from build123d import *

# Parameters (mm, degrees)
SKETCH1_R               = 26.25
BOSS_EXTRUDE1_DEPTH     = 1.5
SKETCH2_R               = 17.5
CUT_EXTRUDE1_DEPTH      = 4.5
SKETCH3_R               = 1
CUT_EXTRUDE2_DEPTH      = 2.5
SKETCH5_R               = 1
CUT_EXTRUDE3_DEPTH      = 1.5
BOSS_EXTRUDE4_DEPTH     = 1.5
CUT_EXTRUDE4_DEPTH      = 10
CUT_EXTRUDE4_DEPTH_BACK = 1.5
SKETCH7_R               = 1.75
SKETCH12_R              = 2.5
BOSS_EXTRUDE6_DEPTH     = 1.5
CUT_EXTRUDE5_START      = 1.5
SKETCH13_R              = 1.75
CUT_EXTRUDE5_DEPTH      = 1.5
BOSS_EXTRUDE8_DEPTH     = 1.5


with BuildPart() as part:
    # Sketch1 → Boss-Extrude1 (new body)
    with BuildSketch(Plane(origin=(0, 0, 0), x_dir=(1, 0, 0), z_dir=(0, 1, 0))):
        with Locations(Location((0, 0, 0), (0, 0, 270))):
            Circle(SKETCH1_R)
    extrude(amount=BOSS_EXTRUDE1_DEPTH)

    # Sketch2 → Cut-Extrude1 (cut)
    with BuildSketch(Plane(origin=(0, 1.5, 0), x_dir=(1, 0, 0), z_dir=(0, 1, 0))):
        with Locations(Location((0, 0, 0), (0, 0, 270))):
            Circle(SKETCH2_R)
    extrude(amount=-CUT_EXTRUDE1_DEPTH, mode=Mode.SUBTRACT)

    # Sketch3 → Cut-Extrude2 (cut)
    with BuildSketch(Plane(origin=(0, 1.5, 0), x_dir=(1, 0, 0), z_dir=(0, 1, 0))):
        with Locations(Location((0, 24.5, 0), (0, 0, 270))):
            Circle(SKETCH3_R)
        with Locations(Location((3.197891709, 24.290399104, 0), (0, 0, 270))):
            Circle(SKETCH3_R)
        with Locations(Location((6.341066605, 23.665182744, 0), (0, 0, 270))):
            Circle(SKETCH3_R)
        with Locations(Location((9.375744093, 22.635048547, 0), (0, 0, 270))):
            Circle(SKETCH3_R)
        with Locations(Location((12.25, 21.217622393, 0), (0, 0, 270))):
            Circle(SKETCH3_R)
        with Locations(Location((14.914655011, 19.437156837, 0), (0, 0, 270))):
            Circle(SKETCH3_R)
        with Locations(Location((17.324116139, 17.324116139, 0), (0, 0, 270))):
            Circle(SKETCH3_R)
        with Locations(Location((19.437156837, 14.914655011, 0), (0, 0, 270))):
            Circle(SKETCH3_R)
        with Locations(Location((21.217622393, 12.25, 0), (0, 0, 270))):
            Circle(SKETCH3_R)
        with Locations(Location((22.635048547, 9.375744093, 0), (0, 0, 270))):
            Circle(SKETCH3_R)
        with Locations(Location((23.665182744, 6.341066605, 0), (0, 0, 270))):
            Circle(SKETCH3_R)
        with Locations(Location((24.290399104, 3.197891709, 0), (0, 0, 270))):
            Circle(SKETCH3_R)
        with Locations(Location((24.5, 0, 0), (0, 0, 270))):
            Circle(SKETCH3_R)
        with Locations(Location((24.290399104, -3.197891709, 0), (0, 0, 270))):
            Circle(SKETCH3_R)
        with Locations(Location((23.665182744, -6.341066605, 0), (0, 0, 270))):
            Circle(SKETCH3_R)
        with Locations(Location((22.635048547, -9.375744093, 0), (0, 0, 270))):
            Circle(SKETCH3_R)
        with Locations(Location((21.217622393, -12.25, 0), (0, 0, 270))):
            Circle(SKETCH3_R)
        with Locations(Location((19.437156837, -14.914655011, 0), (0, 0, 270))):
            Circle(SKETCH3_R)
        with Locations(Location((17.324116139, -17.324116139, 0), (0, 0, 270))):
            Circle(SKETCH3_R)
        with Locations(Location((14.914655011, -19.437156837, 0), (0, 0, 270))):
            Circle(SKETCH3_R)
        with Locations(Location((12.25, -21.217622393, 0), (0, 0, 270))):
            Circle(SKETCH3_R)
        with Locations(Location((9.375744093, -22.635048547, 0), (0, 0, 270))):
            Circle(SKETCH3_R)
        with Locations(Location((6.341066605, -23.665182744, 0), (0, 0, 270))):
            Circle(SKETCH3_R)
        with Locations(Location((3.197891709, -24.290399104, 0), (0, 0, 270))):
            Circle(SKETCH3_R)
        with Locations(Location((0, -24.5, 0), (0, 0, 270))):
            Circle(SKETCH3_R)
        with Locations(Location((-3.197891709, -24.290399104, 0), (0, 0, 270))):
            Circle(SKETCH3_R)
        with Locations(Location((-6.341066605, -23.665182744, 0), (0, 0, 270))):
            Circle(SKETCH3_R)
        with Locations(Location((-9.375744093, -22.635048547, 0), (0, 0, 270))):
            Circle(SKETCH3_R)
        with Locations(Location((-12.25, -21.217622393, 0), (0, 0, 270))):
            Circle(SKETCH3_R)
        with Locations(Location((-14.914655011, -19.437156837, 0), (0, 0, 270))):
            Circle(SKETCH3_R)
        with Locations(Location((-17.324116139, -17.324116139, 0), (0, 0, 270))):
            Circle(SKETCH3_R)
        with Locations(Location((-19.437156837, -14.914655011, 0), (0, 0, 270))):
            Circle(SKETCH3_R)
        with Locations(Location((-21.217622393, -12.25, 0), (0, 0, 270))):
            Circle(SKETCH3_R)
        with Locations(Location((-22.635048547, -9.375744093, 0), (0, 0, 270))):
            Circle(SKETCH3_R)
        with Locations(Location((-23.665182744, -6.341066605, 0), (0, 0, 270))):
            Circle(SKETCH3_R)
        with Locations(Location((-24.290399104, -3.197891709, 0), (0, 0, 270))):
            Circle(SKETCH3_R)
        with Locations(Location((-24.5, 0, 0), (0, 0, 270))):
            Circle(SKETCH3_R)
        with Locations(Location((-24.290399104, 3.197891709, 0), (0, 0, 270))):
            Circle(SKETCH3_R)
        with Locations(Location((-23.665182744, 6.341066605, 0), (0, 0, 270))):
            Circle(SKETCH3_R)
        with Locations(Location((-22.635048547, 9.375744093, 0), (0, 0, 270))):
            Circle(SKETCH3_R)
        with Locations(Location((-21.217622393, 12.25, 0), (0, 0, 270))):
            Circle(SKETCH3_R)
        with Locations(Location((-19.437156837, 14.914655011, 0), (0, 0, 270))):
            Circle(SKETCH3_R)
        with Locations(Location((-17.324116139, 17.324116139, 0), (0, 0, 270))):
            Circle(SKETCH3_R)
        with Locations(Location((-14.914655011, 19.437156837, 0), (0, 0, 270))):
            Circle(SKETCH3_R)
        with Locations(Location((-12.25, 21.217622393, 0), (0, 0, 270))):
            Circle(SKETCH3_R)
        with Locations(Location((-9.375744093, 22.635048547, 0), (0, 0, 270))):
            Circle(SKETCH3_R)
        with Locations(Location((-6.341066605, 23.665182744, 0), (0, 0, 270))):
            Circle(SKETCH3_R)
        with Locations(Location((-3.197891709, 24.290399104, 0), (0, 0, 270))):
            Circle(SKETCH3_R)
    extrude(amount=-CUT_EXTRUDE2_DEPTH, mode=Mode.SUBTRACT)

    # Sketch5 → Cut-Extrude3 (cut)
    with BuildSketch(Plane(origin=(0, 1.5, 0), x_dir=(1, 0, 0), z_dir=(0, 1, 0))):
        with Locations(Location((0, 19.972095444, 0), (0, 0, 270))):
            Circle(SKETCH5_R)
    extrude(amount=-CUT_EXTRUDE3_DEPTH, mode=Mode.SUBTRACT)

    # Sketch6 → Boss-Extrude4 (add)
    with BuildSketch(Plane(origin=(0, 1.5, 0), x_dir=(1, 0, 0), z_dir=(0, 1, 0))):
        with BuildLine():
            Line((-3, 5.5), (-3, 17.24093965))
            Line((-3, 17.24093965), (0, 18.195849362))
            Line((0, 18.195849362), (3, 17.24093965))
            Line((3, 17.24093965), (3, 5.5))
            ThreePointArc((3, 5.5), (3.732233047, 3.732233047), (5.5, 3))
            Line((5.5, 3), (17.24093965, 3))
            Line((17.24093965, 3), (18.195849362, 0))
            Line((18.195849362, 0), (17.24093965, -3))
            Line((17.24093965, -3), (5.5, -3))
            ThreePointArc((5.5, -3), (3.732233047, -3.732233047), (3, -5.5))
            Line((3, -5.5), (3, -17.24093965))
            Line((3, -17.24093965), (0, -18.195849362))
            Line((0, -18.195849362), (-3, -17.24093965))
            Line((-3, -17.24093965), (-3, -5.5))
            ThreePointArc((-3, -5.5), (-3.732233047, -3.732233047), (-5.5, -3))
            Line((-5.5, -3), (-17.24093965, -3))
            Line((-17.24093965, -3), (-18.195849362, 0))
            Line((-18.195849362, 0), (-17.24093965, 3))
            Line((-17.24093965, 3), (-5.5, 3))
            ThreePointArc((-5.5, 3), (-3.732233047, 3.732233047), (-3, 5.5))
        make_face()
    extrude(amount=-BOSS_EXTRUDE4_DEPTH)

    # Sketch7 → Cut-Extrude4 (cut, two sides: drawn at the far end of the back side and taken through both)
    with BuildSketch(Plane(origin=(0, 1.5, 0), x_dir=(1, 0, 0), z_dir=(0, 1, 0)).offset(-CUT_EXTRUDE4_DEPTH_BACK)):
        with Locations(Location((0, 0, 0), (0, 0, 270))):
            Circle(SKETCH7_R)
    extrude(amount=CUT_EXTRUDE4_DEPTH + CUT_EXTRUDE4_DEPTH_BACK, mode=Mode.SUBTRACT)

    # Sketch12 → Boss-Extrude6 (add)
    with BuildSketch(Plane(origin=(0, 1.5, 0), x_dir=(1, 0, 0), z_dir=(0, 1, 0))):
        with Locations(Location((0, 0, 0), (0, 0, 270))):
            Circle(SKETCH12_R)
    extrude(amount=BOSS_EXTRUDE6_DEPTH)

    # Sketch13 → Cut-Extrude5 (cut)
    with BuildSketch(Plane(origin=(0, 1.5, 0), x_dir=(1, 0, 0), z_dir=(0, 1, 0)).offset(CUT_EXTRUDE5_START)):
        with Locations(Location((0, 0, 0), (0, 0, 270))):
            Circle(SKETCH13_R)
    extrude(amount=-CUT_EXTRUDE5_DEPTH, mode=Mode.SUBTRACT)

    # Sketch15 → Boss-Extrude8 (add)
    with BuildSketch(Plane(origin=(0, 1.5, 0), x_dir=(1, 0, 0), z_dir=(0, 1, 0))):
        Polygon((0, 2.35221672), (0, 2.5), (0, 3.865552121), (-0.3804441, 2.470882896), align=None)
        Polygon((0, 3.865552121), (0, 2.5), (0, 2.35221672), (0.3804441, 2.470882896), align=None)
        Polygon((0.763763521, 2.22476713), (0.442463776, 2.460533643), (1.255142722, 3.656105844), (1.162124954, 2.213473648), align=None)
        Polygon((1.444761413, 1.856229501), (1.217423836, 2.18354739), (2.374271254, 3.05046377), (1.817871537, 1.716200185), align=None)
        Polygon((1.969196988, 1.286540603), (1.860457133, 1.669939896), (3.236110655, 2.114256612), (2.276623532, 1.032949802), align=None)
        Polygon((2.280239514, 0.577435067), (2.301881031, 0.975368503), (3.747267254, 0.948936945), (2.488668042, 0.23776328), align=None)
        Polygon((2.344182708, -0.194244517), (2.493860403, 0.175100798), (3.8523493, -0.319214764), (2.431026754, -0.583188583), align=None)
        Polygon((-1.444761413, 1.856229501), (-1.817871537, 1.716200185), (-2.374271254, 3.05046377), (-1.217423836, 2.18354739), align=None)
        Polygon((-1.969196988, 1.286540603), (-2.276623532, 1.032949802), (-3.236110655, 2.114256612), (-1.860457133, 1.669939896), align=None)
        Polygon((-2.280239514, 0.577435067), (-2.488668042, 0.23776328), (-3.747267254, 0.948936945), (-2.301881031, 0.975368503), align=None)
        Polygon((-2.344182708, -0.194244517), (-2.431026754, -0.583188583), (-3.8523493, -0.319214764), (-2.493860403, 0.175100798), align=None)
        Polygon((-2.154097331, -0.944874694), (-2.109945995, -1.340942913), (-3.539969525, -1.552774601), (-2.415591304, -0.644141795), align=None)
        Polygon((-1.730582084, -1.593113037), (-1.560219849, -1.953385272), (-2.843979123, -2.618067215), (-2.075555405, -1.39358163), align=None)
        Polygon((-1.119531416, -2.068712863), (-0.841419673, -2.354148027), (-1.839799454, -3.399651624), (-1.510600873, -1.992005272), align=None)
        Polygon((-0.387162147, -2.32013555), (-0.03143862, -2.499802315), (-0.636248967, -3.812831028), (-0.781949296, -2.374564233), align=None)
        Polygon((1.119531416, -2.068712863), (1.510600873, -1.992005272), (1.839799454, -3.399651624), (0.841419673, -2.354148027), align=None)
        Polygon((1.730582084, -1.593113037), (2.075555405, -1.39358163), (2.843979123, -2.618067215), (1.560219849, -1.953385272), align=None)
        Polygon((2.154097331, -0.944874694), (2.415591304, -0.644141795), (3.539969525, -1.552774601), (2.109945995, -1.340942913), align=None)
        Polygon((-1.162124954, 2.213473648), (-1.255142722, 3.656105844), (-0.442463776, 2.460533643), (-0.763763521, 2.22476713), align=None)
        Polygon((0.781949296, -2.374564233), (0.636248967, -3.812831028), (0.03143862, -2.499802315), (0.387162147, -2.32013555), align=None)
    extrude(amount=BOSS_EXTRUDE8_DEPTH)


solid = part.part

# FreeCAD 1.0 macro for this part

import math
import FreeCAD as App
import Part
import Sketcher
from FreeCAD import Vector

doc = App.newDocument("Part")
body = doc.addObject("PartDesign::Body", "Body")

# Sketch on XZ plane
sketch1 = body.newObject("Sketcher::SketchObject", "Sketch")
sketch1.AttachmentSupport = (doc.getObject("XZ_Plane"), [""])
sketch1.MapMode = "FlatFace"
sketch1.addGeometry(Part.Circle(Vector(0, 0, 0), Vector(0, 0, 1), 26), False)
sketch1.addConstraint([
    Sketcher.Constraint("Coincident", 0, 3, -1, 1),
    Sketcher.Constraint("Diameter", 0, 52.5),
])
pad1 = body.newObject("PartDesign::Pad", "Pad")
pad1.Profile = sketch1
pad1.Length = 1.5
pad1.Reversed = True

# Sketch on XZ plane
sketch2 = body.newObject("Sketcher::SketchObject", "Sketch001")
sketch2.AttachmentSupport = (doc.getObject("XZ_Plane"), [""])
sketch2.MapMode = "FlatFace"
sketch2.AttachmentOffset = App.Placement(Vector(0, 0, -1.5), App.Rotation())
sketch2.addGeometry(Part.Circle(Vector(0, 0, 0), Vector(0, 0, 1), 18), False)
sketch2.addConstraint([
    Sketcher.Constraint("Coincident", 0, 3, -1, 1),
    Sketcher.Constraint("Diameter", 0, 35.0),
])
pocket1 = body.newObject("PartDesign::Pocket", "Pocket")
pocket1.Profile = sketch2
pocket1.Length = 4.5
pocket1.Reversed = True

# Sketch on XZ plane
sketch3 = body.newObject("Sketcher::SketchObject", "Sketch002")
sketch3.AttachmentSupport = (doc.getObject("XZ_Plane"), [""])
sketch3.MapMode = "FlatFace"
sketch3.AttachmentOffset = App.Placement(Vector(0, 0, -1.5), App.Rotation())
sketch3.addGeometry([
    Part.Circle(Vector(0, -24.5, 0), Vector(0, 0, 1), 1),  # 0
    Part.Circle(Vector(3.2, -24.3, 0), Vector(0, 0, 1), 1),  # 1
    Part.Circle(Vector(6.3, -23.7, 0), Vector(0, 0, 1), 1),  # 2
    Part.Circle(Vector(9.4, -22.6, 0), Vector(0, 0, 1), 1),  # 3
    Part.Circle(Vector(12.2, -21.2, 0), Vector(0, 0, 1), 1),  # 4
    Part.Circle(Vector(14.9, -19.4, 0), Vector(0, 0, 1), 1),  # 5
    Part.Circle(Vector(17.3, -17.3, 0), Vector(0, 0, 1), 1),  # 6
    Part.Circle(Vector(19.4, -14.9, 0), Vector(0, 0, 1), 1),  # 7
    Part.Circle(Vector(21.2, -12.2, 0), Vector(0, 0, 1), 1),  # 8
    Part.Circle(Vector(22.6, -9.4, 0), Vector(0, 0, 1), 1),  # 9
    Part.Circle(Vector(23.7, -6.3, 0), Vector(0, 0, 1), 1),  # 10
    Part.Circle(Vector(24.3, -3.2, 0), Vector(0, 0, 1), 1),  # 11
    Part.Circle(Vector(24.5, 0, 0), Vector(0, 0, 1), 1),  # 12
    Part.Circle(Vector(24.3, 3.2, 0), Vector(0, 0, 1), 1),  # 13
    Part.Circle(Vector(23.7, 6.3, 0), Vector(0, 0, 1), 1),  # 14
    Part.Circle(Vector(22.6, 9.4, 0), Vector(0, 0, 1), 1),  # 15
    Part.Circle(Vector(21.2, 12.2, 0), Vector(0, 0, 1), 1),  # 16
    Part.Circle(Vector(19.4, 14.9, 0), Vector(0, 0, 1), 1),  # 17
    Part.Circle(Vector(17.3, 17.3, 0), Vector(0, 0, 1), 1),  # 18
    Part.Circle(Vector(14.9, 19.4, 0), Vector(0, 0, 1), 1),  # 19
    Part.Circle(Vector(12.2, 21.2, 0), Vector(0, 0, 1), 1),  # 20
    Part.Circle(Vector(9.4, 22.6, 0), Vector(0, 0, 1), 1),  # 21
    Part.Circle(Vector(6.3, 23.7, 0), Vector(0, 0, 1), 1),  # 22
    Part.Circle(Vector(3.2, 24.3, 0), Vector(0, 0, 1), 1),  # 23
    Part.Circle(Vector(0, 24.5, 0), Vector(0, 0, 1), 1),  # 24
    Part.Circle(Vector(-3.2, 24.3, 0), Vector(0, 0, 1), 1),  # 25
    Part.Circle(Vector(-6.3, 23.7, 0), Vector(0, 0, 1), 1),  # 26
    Part.Circle(Vector(-9.4, 22.6, 0), Vector(0, 0, 1), 1),  # 27
    Part.Circle(Vector(-12.2, 21.2, 0), Vector(0, 0, 1), 1),  # 28
    Part.Circle(Vector(-14.9, 19.4, 0), Vector(0, 0, 1), 1),  # 29
    Part.Circle(Vector(-17.3, 17.3, 0), Vector(0, 0, 1), 1),  # 30
    Part.Circle(Vector(-19.4, 14.9, 0), Vector(0, 0, 1), 1),  # 31
    Part.Circle(Vector(-21.2, 12.2, 0), Vector(0, 0, 1), 1),  # 32
    Part.Circle(Vector(-22.6, 9.4, 0), Vector(0, 0, 1), 1),  # 33
    Part.Circle(Vector(-23.7, 6.3, 0), Vector(0, 0, 1), 1),  # 34
    Part.Circle(Vector(-24.3, 3.2, 0), Vector(0, 0, 1), 1),  # 35
    Part.Circle(Vector(-24.5, 0, 0), Vector(0, 0, 1), 1),  # 36
    Part.Circle(Vector(-24.3, -3.2, 0), Vector(0, 0, 1), 1),  # 37
    Part.Circle(Vector(-23.7, -6.3, 0), Vector(0, 0, 1), 1),  # 38
    Part.Circle(Vector(-22.6, -9.4, 0), Vector(0, 0, 1), 1),  # 39
    Part.Circle(Vector(-21.2, -12.2, 0), Vector(0, 0, 1), 1),  # 40
    Part.Circle(Vector(-19.4, -14.9, 0), Vector(0, 0, 1), 1),  # 41
    Part.Circle(Vector(-17.3, -17.3, 0), Vector(0, 0, 1), 1),  # 42
    Part.Circle(Vector(-14.9, -19.4, 0), Vector(0, 0, 1), 1),  # 43
    Part.Circle(Vector(-12.2, -21.2, 0), Vector(0, 0, 1), 1),  # 44
    Part.Circle(Vector(-9.4, -22.6, 0), Vector(0, 0, 1), 1),  # 45
    Part.Circle(Vector(-6.3, -23.7, 0), Vector(0, 0, 1), 1),  # 46
    Part.Circle(Vector(-3.2, -24.3, 0), Vector(0, 0, 1), 1),  # 47
], False)
sketch3.addConstraint([
    Sketcher.Constraint("Equal", 0, 1),
    Sketcher.Constraint("Equal", 1, 2),
    Sketcher.Constraint("Equal", 2, 3),
    Sketcher.Constraint("Equal", 3, 4),
    Sketcher.Constraint("Equal", 4, 5),
    Sketcher.Constraint("Equal", 5, 6),
    Sketcher.Constraint("Equal", 6, 7),
    Sketcher.Constraint("Equal", 7, 8),
    Sketcher.Constraint("Equal", 8, 9),
    Sketcher.Constraint("Equal", 9, 10),
    Sketcher.Constraint("Equal", 10, 11),
    Sketcher.Constraint("Equal", 11, 12),
    Sketcher.Constraint("Equal", 12, 13),
    Sketcher.Constraint("Equal", 13, 14),
    Sketcher.Constraint("Equal", 14, 15),
    Sketcher.Constraint("Equal", 15, 16),
    Sketcher.Constraint("Equal", 16, 17),
    Sketcher.Constraint("Equal", 17, 18),
    Sketcher.Constraint("Equal", 18, 19),
    Sketcher.Constraint("Equal", 19, 20),
    Sketcher.Constraint("Equal", 20, 21),
    Sketcher.Constraint("Equal", 21, 22),
    Sketcher.Constraint("Equal", 22, 23),
    Sketcher.Constraint("Equal", 23, 24),
    Sketcher.Constraint("Equal", 24, 25),
    Sketcher.Constraint("Equal", 25, 26),
    Sketcher.Constraint("Equal", 26, 27),
    Sketcher.Constraint("Equal", 27, 28),
    Sketcher.Constraint("Equal", 28, 29),
    Sketcher.Constraint("Equal", 29, 30),
    Sketcher.Constraint("Equal", 30, 31),
    Sketcher.Constraint("Equal", 31, 32),
    Sketcher.Constraint("Equal", 32, 33),
    Sketcher.Constraint("Equal", 33, 34),
    Sketcher.Constraint("Equal", 34, 35),
    Sketcher.Constraint("Equal", 35, 36),
    Sketcher.Constraint("Equal", 36, 37),
    Sketcher.Constraint("Equal", 37, 38),
    Sketcher.Constraint("Equal", 38, 39),
    Sketcher.Constraint("Equal", 39, 40),
    Sketcher.Constraint("Equal", 40, 41),
    Sketcher.Constraint("Equal", 41, 42),
    Sketcher.Constraint("Equal", 42, 43),
    Sketcher.Constraint("Equal", 43, 44),
    Sketcher.Constraint("Equal", 44, 45),
    Sketcher.Constraint("Equal", 45, 46),
    Sketcher.Constraint("Equal", 46, 47),
    Sketcher.Constraint("Symmetric", 0, 3, 24, 3, -1, 1),
    Sketcher.Constraint("Symmetric", 1, 3, 25, 3, -1, 1),
    Sketcher.Constraint("Symmetric", 2, 3, 26, 3, -1, 1),
    Sketcher.Constraint("Symmetric", 3, 3, 27, 3, -1, 1),
    Sketcher.Constraint("Symmetric", 4, 3, 28, 3, -1, 1),
    Sketcher.Constraint("Symmetric", 5, 3, 29, 3, -1, 1),
    Sketcher.Constraint("Symmetric", 6, 3, 30, 3, -1, 1),
    Sketcher.Constraint("Symmetric", 7, 3, 31, 3, -1, 1),
    Sketcher.Constraint("Symmetric", 8, 3, 32, 3, -1, 1),
    Sketcher.Constraint("Symmetric", 9, 3, 33, 3, -1, 1),
    Sketcher.Constraint("Symmetric", 10, 3, 34, 3, -1, 1),
    Sketcher.Constraint("Symmetric", 11, 3, 35, 3, -1, 1),
    Sketcher.Constraint("Symmetric", 12, 3, 36, 3, -1, 1),
    Sketcher.Constraint("Symmetric", 13, 3, 37, 3, -1, 1),
    Sketcher.Constraint("Symmetric", 14, 3, 38, 3, -1, 1),
    Sketcher.Constraint("Symmetric", 15, 3, 39, 3, -1, 1),
    Sketcher.Constraint("Symmetric", 16, 3, 40, 3, -1, 1),
    Sketcher.Constraint("Symmetric", 17, 3, 41, 3, -1, 1),
    Sketcher.Constraint("Symmetric", 18, 3, 42, 3, -1, 1),
    Sketcher.Constraint("Symmetric", 19, 3, 43, 3, -1, 1),
    Sketcher.Constraint("Symmetric", 20, 3, 44, 3, -1, 1),
    Sketcher.Constraint("Symmetric", 21, 3, 45, 3, -1, 1),
    Sketcher.Constraint("Symmetric", 22, 3, 46, 3, -1, 1),
    Sketcher.Constraint("Symmetric", 23, 3, 47, 3, -1, 1),
    Sketcher.Constraint("Symmetric", 23, 3, 25, 3, -2),
    Sketcher.Constraint("Symmetric", 22, 3, 26, 3, -2),
    Sketcher.Constraint("Symmetric", 21, 3, 27, 3, -2),
    Sketcher.Constraint("Symmetric", 20, 3, 28, 3, -2),
    Sketcher.Constraint("Symmetric", 19, 3, 29, 3, -2),
    Sketcher.Constraint("Symmetric", 18, 3, 30, 3, -2),
    Sketcher.Constraint("Symmetric", 17, 3, 31, 3, -2),
    Sketcher.Constraint("Symmetric", 16, 3, 32, 3, -2),
    Sketcher.Constraint("Symmetric", 15, 3, 33, 3, -2),
    Sketcher.Constraint("Symmetric", 14, 3, 34, 3, -2),
    Sketcher.Constraint("Symmetric", 13, 3, 35, 3, -2),
    Sketcher.Constraint("PointOnObject", 0, 3, -2),
    Sketcher.Constraint("PointOnObject", 12, 3, -1),
    Sketcher.Constraint("Diameter", 0, 2.0),
    Sketcher.Constraint("DistanceY", 0, 3, -1, 1, 24.5),
    Sketcher.Constraint("DistanceX", -1, 1, 12, 3, 24.5),
    Sketcher.Constraint("DistanceX", -1, 1, 4, 3, 12.25),
    Sketcher.Constraint("DistanceY", 8, 3, -1, 1, 12.25),
    Sketcher.Constraint("DistanceY", 1, 3, -1, 1, 24.290399),
    Sketcher.Constraint("DistanceX", -1, 1, 11, 3, 24.290399),
    Sketcher.Constraint("DistanceX", 5, 3, 7, 3, 4.522502),
    Sketcher.Constraint("DistanceY", 5, 3, 7, 3, 4.522502),
    Sketcher.Constraint("DistanceX", -1, 1, 1, 3, 3.197892),
    Sketcher.Constraint("DistanceY", 3, 3, -1, 1, 22.635049),
    Sketcher.Constraint("DistanceX", -1, 1, 9, 3, 22.635049),
    Sketcher.Constraint("DistanceY", 11, 3, -1, 1, 3.197892),
    Sketcher.Constraint("DistanceY", 2, 3, 4, 3, 2.44756),
    Sketcher.Constraint("DistanceX", 3, 3, 5, 3, 5.538911),
    Sketcher.Constraint("DistanceY", 3, 3, 5, 3, 3.197892),
    Sketcher.Constraint("DistanceX", 2, 3, 5, 3, 8.573588),
    Sketcher.Constraint("DistanceX", 5, 3, 6, 3, 2.409461),
    Sketcher.Constraint("DistanceY", 5, 3, 6, 3, 2.113041),
    Sketcher.Constraint("DistanceX", 3, 3, 8, 3, 11.841878),
    Sketcher.Constraint("DistanceX", 7, 3, 9, 3, 3.197892),
    Sketcher.Constraint("DistanceY", 7, 3, 9, 3, 5.538911),
    Sketcher.Constraint("DistanceY", 4, 3, 9, 3, 11.841878),
    Sketcher.Constraint("DistanceX", 8, 3, 10, 3, 2.44756),
    Sketcher.Constraint("DistanceY", 7, 3, 10, 3, 8.573588),
])
pocket2 = body.newObject("PartDesign::Pocket", "Pocket001")
pocket2.Profile = sketch3
pocket2.Length = 2.5
pocket2.Reversed = True

# Sketch on XZ plane
sketch4 = body.newObject("Sketcher::SketchObject", "Sketch003")
sketch4.AttachmentSupport = (doc.getObject("XZ_Plane"), [""])
sketch4.MapMode = "FlatFace"
sketch4.AttachmentOffset = App.Placement(Vector(0, 0, -1.5), App.Rotation())
sketch4.addGeometry(Part.Circle(Vector(0, -20, 0), Vector(0, 0, 1), 1), False)
sketch4.addConstraint([
    Sketcher.Constraint("PointOnObject", 0, 3, -2),
    Sketcher.Constraint("Diameter", 0, 2.0),
    Sketcher.Constraint("DistanceY", 0, 3, -1, 1, 19.972095),
])
pocket3 = body.newObject("PartDesign::Pocket", "Pocket002")
pocket3.Profile = sketch4
pocket3.Length = 1.5
pocket3.Reversed = True

# Sketch on XZ plane
sketch5 = body.newObject("Sketcher::SketchObject", "Sketch004")
sketch5.AttachmentSupport = (doc.getObject("XZ_Plane"), [""])
sketch5.MapMode = "FlatFace"
sketch5.AttachmentOffset = App.Placement(Vector(0, 0, -1.5), App.Rotation())
sketch5.addGeometry([
    Part.LineSegment(Vector(-3, -17.2, 0), Vector(-3, -5.5, 0)),  # 0
    Part.ArcOfCircle(Part.Circle(Vector(-5.5, -5.5, 0), Vector(0, 0, 1), 2.5), math.radians(0), math.radians(90)),  # 1
    Part.LineSegment(Vector(-5.5, -3, 0), Vector(-17.2, -3, 0)),  # 2
    Part.LineSegment(Vector(-17.2, -3, 0), Vector(-18.2, 0, 0)),  # 3
    Part.LineSegment(Vector(-18.2, 0, 0), Vector(-17.2, 3, 0)),  # 4
    Part.LineSegment(Vector(-17.2, 3, 0), Vector(-5.5, 3, 0)),  # 5
    Part.ArcOfCircle(Part.Circle(Vector(-5.5, 5.5, 0), Vector(0, 0, 1), 2.5), math.radians(-90), math.radians(0)),  # 6
    Part.LineSegment(Vector(-3, 5.5, 0), Vector(-3, 17.2, 0)),  # 7
    Part.LineSegment(Vector(-3, 17.2, 0), Vector(0, 18.2, 0)),  # 8
    Part.LineSegment(Vector(0, 18.2, 0), Vector(3, 17.2, 0)),  # 9
    Part.LineSegment(Vector(3, 17.2, 0), Vector(3, 5.5, 0)),  # 10
    Part.ArcOfCircle(Part.Circle(Vector(5.5, 5.5, 0), Vector(0, 0, 1), 2.5), math.radians(180), math.radians(270)),  # 11
    Part.LineSegment(Vector(5.5, 3, 0), Vector(17.2, 3, 0)),  # 12
    Part.LineSegment(Vector(17.2, 3, 0), Vector(18.2, 0, 0)),  # 13
    Part.LineSegment(Vector(18.2, 0, 0), Vector(17.2, -3, 0)),  # 14
    Part.LineSegment(Vector(17.2, -3, 0), Vector(5.5, -3, 0)),  # 15
    Part.ArcOfCircle(Part.Circle(Vector(5.5, -5.5, 0), Vector(0, 0, 1), 2.5), math.radians(90), math.radians(180)),  # 16
    Part.LineSegment(Vector(3, -5.5, 0), Vector(3, -17.2, 0)),  # 17
    Part.LineSegment(Vector(3, -17.2, 0), Vector(0, -18.2, 0)),  # 18
    Part.LineSegment(Vector(0, -18.2, 0), Vector(-3, -17.2, 0)),  # 19
], False)
sketch5.addConstraint([
    Sketcher.Constraint("Tangent", 0, 2, 1, 1),
    Sketcher.Constraint("Tangent", 1, 2, 2, 1),
    Sketcher.Constraint("Coincident", 2, 2, 3, 1),
    Sketcher.Constraint("Coincident", 3, 2, 4, 1),
    Sketcher.Constraint("Coincident", 4, 2, 5, 1),
    Sketcher.Constraint("Tangent", 5, 2, 6, 1),
    Sketcher.Constraint("Tangent", 6, 2, 7, 1),
    Sketcher.Constraint("Coincident", 7, 2, 8, 1),
    Sketcher.Constraint("Coincident", 8, 2, 9, 1),
    Sketcher.Constraint("Coincident", 9, 2, 10, 1),
    Sketcher.Constraint("Tangent", 10, 2, 11, 1),
    Sketcher.Constraint("Tangent", 11, 2, 12, 1),
    Sketcher.Constraint("Coincident", 12, 2, 13, 1),
    Sketcher.Constraint("Coincident", 13, 2, 14, 1),
    Sketcher.Constraint("Coincident", 14, 2, 15, 1),
    Sketcher.Constraint("Tangent", 15, 2, 16, 1),
    Sketcher.Constraint("Tangent", 16, 2, 17, 1),
    Sketcher.Constraint("Coincident", 17, 2, 18, 1),
    Sketcher.Constraint("Coincident", 18, 2, 19, 1),
    Sketcher.Constraint("Coincident", 19, 2, 0, 1),
    Sketcher.Constraint("Vertical", 0),
    Sketcher.Constraint("Horizontal", 2),
    Sketcher.Constraint("Horizontal", 5),
    Sketcher.Constraint("Vertical", 7),
    Sketcher.Constraint("Vertical", 10),
    Sketcher.Constraint("Horizontal", 12),
    Sketcher.Constraint("Horizontal", 15),
    Sketcher.Constraint("Vertical", 17),
    Sketcher.Constraint("Equal", 1, 6),
    Sketcher.Constraint("Equal", 6, 11),
    Sketcher.Constraint("Equal", 11, 16),
    Sketcher.Constraint("Symmetric", 1, 3, 11, 3, -1, 1),
    Sketcher.Constraint("Symmetric", 6, 3, 16, 3, -1, 1),
    Sketcher.Constraint("Symmetric", 3, 2, 13, 2, -1, 1),
    Sketcher.Constraint("Symmetric", 8, 2, 18, 2, -1, 1),
    Sketcher.Constraint("Symmetric", 6, 3, 11, 3, -2),
    Sketcher.Constraint("PointOnObject", 3, 2, -1),
    Sketcher.Constraint("PointOnObject", 8, 2, -2),
    Sketcher.Constraint("Perpendicular", 3, 8),
    Sketcher.Constraint("Perpendicular", 4, 9),
    Sketcher.Constraint("Perpendicular", 8, 13),
    Sketcher.Constraint("Perpendicular", 9, 14),
    Sketcher.Constraint("Perpendicular", 13, 18),
    Sketcher.Constraint("Perpendicular", 14, 19),
    Sketcher.Constraint("Horizontal", 7, 2, 9, 2),
    Sketcher.Constraint("Equal", 15, 0),
    Sketcher.Constraint("Equal", 4, 8),
    Sketcher.Constraint("Radius", 1, 2.5),
    Sketcher.Constraint("DistanceX", 0, 2, -1, 1, 3.0),
    Sketcher.Constraint("DistanceX", 2, 2, 2, 1, 11.74094),
    Sketcher.Constraint("Distance", 3, 3.148309),
])
pad2 = body.newObject("PartDesign::Pad", "Pad001")
pad2.Profile = sketch5
pad2.Length = 1.5

# Sketch on XZ plane
sketch6 = body.newObject("Sketcher::SketchObject", "Sketch005")
sketch6.AttachmentSupport = (doc.getObject("XZ_Plane"), [""])
sketch6.MapMode = "FlatFace"
sketch6.AttachmentOffset = App.Placement(Vector(0, 0, -1.5), App.Rotation())
sketch6.addGeometry(Part.Circle(Vector(0, 0, 0), Vector(0, 0, 1), 1.8), False)
sketch6.addConstraint([
    Sketcher.Constraint("Coincident", 0, 3, -1, 1),
    Sketcher.Constraint("Diameter", 0, 3.5),
])
pocket4 = body.newObject("PartDesign::Pocket", "Pocket003")
pocket4.Profile = sketch6
pocket4.Type = "ThroughAll"
pocket4.Midplane = True

# Sketch on XZ plane
sketch7 = body.newObject("Sketcher::SketchObject", "Sketch006")
sketch7.AttachmentSupport = (doc.getObject("XZ_Plane"), [""])
sketch7.MapMode = "FlatFace"
sketch7.AttachmentOffset = App.Placement(Vector(0, 0, -1.5), App.Rotation())
sketch7.addGeometry(Part.Circle(Vector(0, 0, 0), Vector(0, 0, 1), 2.5), False)
sketch7.addConstraint([
    Sketcher.Constraint("Coincident", 0, 3, -1, 1),
    Sketcher.Constraint("Diameter", 0, 5.0),
])
pad3 = body.newObject("PartDesign::Pad", "Pad002")
pad3.Profile = sketch7
pad3.Length = 1.5
pad3.Reversed = True

# Sketch on XZ plane
sketch8 = body.newObject("Sketcher::SketchObject", "Sketch007")
sketch8.AttachmentSupport = (doc.getObject("XZ_Plane"), [""])
sketch8.MapMode = "FlatFace"
sketch8.AttachmentOffset = App.Placement(Vector(0, 0, -3), App.Rotation())
sketch8.addGeometry(Part.Circle(Vector(0, 0, 0), Vector(0, 0, 1), 1.8), False)
sketch8.addConstraint([
    Sketcher.Constraint("Coincident", 0, 3, -1, 1),
    Sketcher.Constraint("Diameter", 0, 3.5),
])
pocket5 = body.newObject("PartDesign::Pocket", "Pocket004")
pocket5.Profile = sketch8
pocket5.Length = 1.5
pocket5.Reversed = True

# Sketch on XZ plane
sketch9 = body.newObject("Sketcher::SketchObject", "Sketch008")
sketch9.AttachmentSupport = (doc.getObject("XZ_Plane"), [""])
sketch9.MapMode = "FlatFace"
sketch9.AttachmentOffset = App.Placement(Vector(0, 0, -1.5), App.Rotation())
sketch9.addGeometry([
    Part.LineSegment(Vector(0, -3.865552, 0), Vector(-0.380444, -2.470883, 0)),  # 0
    Part.LineSegment(Vector(-0.380444, -2.470883, 0), Vector(0, -2.352217, 0)),  # 1
    Part.LineSegment(Vector(0, -2.352217, 0), Vector(0.380444, -2.470883, 0)),  # 2
    Part.LineSegment(Vector(0.380444, -2.470883, 0), Vector(0, -3.865552, 0)),  # 3
    Part.LineSegment(Vector(0.442464, -2.460534, 0), Vector(0.763764, -2.224767, 0)),  # 4
    Part.LineSegment(Vector(0.763764, -2.224767, 0), Vector(1.162125, -2.213474, 0)),  # 5
    Part.LineSegment(Vector(1.162125, -2.213474, 0), Vector(1.255143, -3.656106, 0)),  # 6
    Part.LineSegment(Vector(1.255143, -3.656106, 0), Vector(0.442464, -2.460534, 0)),  # 7
    Part.LineSegment(Vector(1.217424, -2.183547, 0), Vector(1.444761, -1.85623, 0)),  # 8
    Part.LineSegment(Vector(1.444761, -1.85623, 0), Vector(1.817872, -1.7162, 0)),  # 9
    Part.LineSegment(Vector(1.817872, -1.7162, 0), Vector(2.374271, -3.050464, 0)),  # 10
    Part.LineSegment(Vector(2.374271, -3.050464, 0), Vector(1.217424, -2.183547, 0)),  # 11
    Part.LineSegment(Vector(1.860457, -1.66994, 0), Vector(1.969197, -1.286541, 0)),  # 12
    Part.LineSegment(Vector(1.969197, -1.286541, 0), Vector(2.276624, -1.03295, 0)),  # 13
    Part.LineSegment(Vector(2.276624, -1.03295, 0), Vector(3.236111, -2.114257, 0)),  # 14
    Part.LineSegment(Vector(3.236111, -2.114257, 0), Vector(1.860457, -1.66994, 0)),  # 15
    Part.LineSegment(Vector(2.301881, -0.975369, 0), Vector(2.28024, -0.577435, 0)),  # 16
    Part.LineSegment(Vector(2.28024, -0.577435, 0), Vector(2.488668, -0.237763, 0)),  # 17
    Part.LineSegment(Vector(2.488668, -0.237763, 0), Vector(3.747267, -0.948937, 0)),  # 18
    Part.LineSegment(Vector(3.747267, -0.948937, 0), Vector(2.301881, -0.975369, 0)),  # 19
    Part.LineSegment(Vector(2.49386, -0.175101, 0), Vector(2.344183, 0.194245, 0)),  # 20
    Part.LineSegment(Vector(2.344183, 0.194245, 0), Vector(2.431027, 0.583189, 0)),  # 21
    Part.LineSegment(Vector(2.431027, 0.583189, 0), Vector(3.852349, 0.319215, 0)),  # 22
    Part.LineSegment(Vector(3.852349, 0.319215, 0), Vector(2.49386, -0.175101, 0)),  # 23
    Part.LineSegment(Vector(-1.817872, -1.7162, 0), Vector(-1.444761, -1.85623, 0)),  # 24
    Part.LineSegment(Vector(-1.444761, -1.85623, 0), Vector(-1.217424, -2.183547, 0)),  # 25
    Part.LineSegment(Vector(-1.217424, -2.183547, 0), Vector(-2.374271, -3.050464, 0)),  # 26
    Part.LineSegment(Vector(-2.374271, -3.050464, 0), Vector(-1.817872, -1.7162, 0)),  # 27
    Part.LineSegment(Vector(-2.276624, -1.03295, 0), Vector(-1.969197, -1.286541, 0)),  # 28
    Part.LineSegment(Vector(-1.969197, -1.286541, 0), Vector(-1.860457, -1.66994, 0)),  # 29
    Part.LineSegment(Vector(-1.860457, -1.66994, 0), Vector(-3.236111, -2.114257, 0)),  # 30
    Part.LineSegment(Vector(-3.236111, -2.114257, 0), Vector(-2.276624, -1.03295, 0)),  # 31
    Part.LineSegment(Vector(-2.488668, -0.237763, 0), Vector(-2.28024, -0.577435, 0)),  # 32
    Part.LineSegment(Vector(-2.28024, -0.577435, 0), Vector(-2.301881, -0.975369, 0)),  # 33
    Part.LineSegment(Vector(-2.301881, -0.975369, 0), Vector(-3.747267, -0.948937, 0)),  # 34
    Part.LineSegment(Vector(-3.747267, -0.948937, 0), Vector(-2.488668, -0.237763, 0)),  # 35
    Part.LineSegment(Vector(-2.431027, 0.583189, 0), Vector(-2.344183, 0.194245, 0)),  # 36
    Part.LineSegment(Vector(-2.344183, 0.194245, 0), Vector(-2.49386, -0.175101, 0)),  # 37
    Part.LineSegment(Vector(-2.49386, -0.175101, 0), Vector(-3.852349, 0.319215, 0)),  # 38
    Part.LineSegment(Vector(-3.852349, 0.319215, 0), Vector(-2.431027, 0.583189, 0)),  # 39
    Part.LineSegment(Vector(-2.109946, 1.340943, 0), Vector(-2.154097, 0.944875, 0)),  # 40
    Part.LineSegment(Vector(-2.154097, 0.944875, 0), Vector(-2.415591, 0.644142, 0)),  # 41
    Part.LineSegment(Vector(-2.415591, 0.644142, 0), Vector(-3.53997, 1.552775, 0)),  # 42
    Part.LineSegment(Vector(-3.53997, 1.552775, 0), Vector(-2.109946, 1.340943, 0)),  # 43
    Part.LineSegment(Vector(-1.56022, 1.953385, 0), Vector(-1.730582, 1.593113, 0)),  # 44
    Part.LineSegment(Vector(-1.730582, 1.593113, 0), Vector(-2.075555, 1.393582, 0)),  # 45
    Part.LineSegment(Vector(-2.075555, 1.393582, 0), Vector(-2.843979, 2.618067, 0)),  # 46
    Part.LineSegment(Vector(-2.843979, 2.618067, 0), Vector(-1.56022, 1.953385, 0)),  # 47
    Part.LineSegment(Vector(-0.84142, 2.354148, 0), Vector(-1.119531, 2.068713, 0)),  # 48
    Part.LineSegment(Vector(-1.119531, 2.068713, 0), Vector(-1.510601, 1.992005, 0)),  # 49
    Part.LineSegment(Vector(-1.510601, 1.992005, 0), Vector(-1.839799, 3.399652, 0)),  # 50
    Part.LineSegment(Vector(-1.839799, 3.399652, 0), Vector(-0.84142, 2.354148, 0)),  # 51
    Part.LineSegment(Vector(-0.031439, 2.499802, 0), Vector(-0.387162, 2.320136, 0)),  # 52
    Part.LineSegment(Vector(-0.387162, 2.320136, 0), Vector(-0.781949, 2.374564, 0)),  # 53
    Part.LineSegment(Vector(-0.781949, 2.374564, 0), Vector(-0.636249, 3.812831, 0)),  # 54
    Part.LineSegment(Vector(-0.636249, 3.812831, 0), Vector(-0.031439, 2.499802, 0)),  # 55
    Part.LineSegment(Vector(1.510601, 1.992005, 0), Vector(1.119531, 2.068713, 0)),  # 56
    Part.LineSegment(Vector(1.119531, 2.068713, 0), Vector(0.84142, 2.354148, 0)),  # 57
    Part.LineSegment(Vector(0.84142, 2.354148, 0), Vector(1.839799, 3.399652, 0)),  # 58
    Part.LineSegment(Vector(1.839799, 3.399652, 0), Vector(1.510601, 1.992005, 0)),  # 59
    Part.LineSegment(Vector(2.075555, 1.393582, 0), Vector(1.730582, 1.593113, 0)),  # 60
    Part.LineSegment(Vector(1.730582, 1.593113, 0), Vector(1.56022, 1.953385, 0)),  # 61
    Part.LineSegment(Vector(1.56022, 1.953385, 0), Vector(2.843979, 2.618067, 0)),  # 62
    Part.LineSegment(Vector(2.843979, 2.618067, 0), Vector(2.075555, 1.393582, 0)),  # 63
    Part.LineSegment(Vector(2.415591, 0.644142, 0), Vector(2.154097, 0.944875, 0)),  # 64
    Part.LineSegment(Vector(2.154097, 0.944875, 0), Vector(2.109946, 1.340943, 0)),  # 65
    Part.LineSegment(Vector(2.109946, 1.340943, 0), Vector(3.53997, 1.552775, 0)),  # 66
    Part.LineSegment(Vector(3.53997, 1.552775, 0), Vector(2.415591, 0.644142, 0)),  # 67
    Part.LineSegment(Vector(-1.255143, -3.656106, 0), Vector(-1.162125, -2.213474, 0)),  # 68
    Part.LineSegment(Vector(-1.162125, -2.213474, 0), Vector(-0.763764, -2.224767, 0)),  # 69
    Part.LineSegment(Vector(-0.763764, -2.224767, 0), Vector(-0.442464, -2.460534, 0)),  # 70
    Part.LineSegment(Vector(-0.442464, -2.460534, 0), Vector(-1.255143, -3.656106, 0)),  # 71
    Part.LineSegment(Vector(0.636249, 3.812831, 0), Vector(0.781949, 2.374564, 0)),  # 72
    Part.LineSegment(Vector(0.781949, 2.374564, 0), Vector(0.387162, 2.320136, 0)),  # 73
    Part.LineSegment(Vector(0.387162, 2.320136, 0), Vector(0.031439, 2.499802, 0)),  # 74
    Part.LineSegment(Vector(0.031439, 2.499802, 0), Vector(0.636249, 3.812831, 0)),  # 75
], False)
sketch9.addConstraint([
    Sketcher.Constraint("Coincident", 0, 2, 1, 1),
    Sketcher.Constraint("Coincident", 1, 2, 2, 1),
    Sketcher.Constraint("Coincident", 2, 2, 3, 1),
    Sketcher.Constraint("Coincident", 3, 2, 0, 1),
    Sketcher.Constraint("Coincident", 4, 2, 5, 1),
    Sketcher.Constraint("Coincident", 5, 2, 6, 1),
    Sketcher.Constraint("Coincident", 6, 2, 7, 1),
    Sketcher.Constraint("Coincident", 7, 2, 4, 1),
    Sketcher.Constraint("Coincident", 8, 2, 9, 1),
    Sketcher.Constraint("Coincident", 9, 2, 10, 1),
    Sketcher.Constraint("Coincident", 10, 2, 11, 1),
    Sketcher.Constraint("Coincident", 11, 2, 8, 1),
    Sketcher.Constraint("Coincident", 12, 2, 13, 1),
    Sketcher.Constraint("Coincident", 13, 2, 14, 1),
    Sketcher.Constraint("Coincident", 14, 2, 15, 1),
    Sketcher.Constraint("Coincident", 15, 2, 12, 1),
    Sketcher.Constraint("Coincident", 16, 2, 17, 1),
    Sketcher.Constraint("Coincident", 17, 2, 18, 1),
    Sketcher.Constraint("Coincident", 18, 2, 19, 1),
    Sketcher.Constraint("Coincident", 19, 2, 16, 1),
    Sketcher.Constraint("Coincident", 20, 2, 21, 1),
    Sketcher.Constraint("Coincident", 21, 2, 22, 1),
    Sketcher.Constraint("Coincident", 22, 2, 23, 1),
    Sketcher.Constraint("Coincident", 23, 2, 20, 1),
    Sketcher.Constraint("Coincident", 24, 2, 25, 1),
    Sketcher.Constraint("Coincident", 25, 2, 26, 1),
    Sketcher.Constraint("Coincident", 26, 2, 27, 1),
    Sketcher.Constraint("Coincident", 27, 2, 24, 1),
    Sketcher.Constraint("Coincident", 28, 2, 29, 1),
    Sketcher.Constraint("Coincident", 29, 2, 30, 1),
    Sketcher.Constraint("Coincident", 30, 2, 31, 1),
    Sketcher.Constraint("Coincident", 31, 2, 28, 1),
    Sketcher.Constraint("Coincident", 32, 2, 33, 1),
    Sketcher.Constraint("Coincident", 33, 2, 34, 1),
    Sketcher.Constraint("Coincident", 34, 2, 35, 1),
    Sketcher.Constraint("Coincident", 35, 2, 32, 1),
    Sketcher.Constraint("Coincident", 36, 2, 37, 1),
    Sketcher.Constraint("Coincident", 37, 2, 38, 1),
    Sketcher.Constraint("Coincident", 38, 2, 39, 1),
    Sketcher.Constraint("Coincident", 39, 2, 36, 1),
    Sketcher.Constraint("Coincident", 40, 2, 41, 1),
    Sketcher.Constraint("Coincident", 41, 2, 42, 1),
    Sketcher.Constraint("Coincident", 42, 2, 43, 1),
    Sketcher.Constraint("Coincident", 43, 2, 40, 1),
    Sketcher.Constraint("Coincident", 44, 2, 45, 1),
    Sketcher.Constraint("Coincident", 45, 2, 46, 1),
    Sketcher.Constraint("Coincident", 46, 2, 47, 1),
    Sketcher.Constraint("Coincident", 47, 2, 44, 1),
    Sketcher.Constraint("Coincident", 48, 2, 49, 1),
    Sketcher.Constraint("Coincident", 49, 2, 50, 1),
    Sketcher.Constraint("Coincident", 50, 2, 51, 1),
    Sketcher.Constraint("Coincident", 51, 2, 48, 1),
    Sketcher.Constraint("Coincident", 52, 2, 53, 1),
    Sketcher.Constraint("Coincident", 53, 2, 54, 1),
    Sketcher.Constraint("Coincident", 54, 2, 55, 1),
    Sketcher.Constraint("Coincident", 55, 2, 52, 1),
    Sketcher.Constraint("Coincident", 56, 2, 57, 1),
    Sketcher.Constraint("Coincident", 57, 2, 58, 1),
    Sketcher.Constraint("Coincident", 58, 2, 59, 1),
    Sketcher.Constraint("Coincident", 59, 2, 56, 1),
    Sketcher.Constraint("Coincident", 60, 2, 61, 1),
    Sketcher.Constraint("Coincident", 61, 2, 62, 1),
    Sketcher.Constraint("Coincident", 62, 2, 63, 1),
    Sketcher.Constraint("Coincident", 63, 2, 60, 1),
    Sketcher.Constraint("Coincident", 64, 2, 65, 1),
    Sketcher.Constraint("Coincident", 65, 2, 66, 1),
    Sketcher.Constraint("Coincident", 66, 2, 67, 1),
    Sketcher.Constraint("Coincident", 67, 2, 64, 1),
    Sketcher.Constraint("Coincident", 68, 2, 69, 1),
    Sketcher.Constraint("Coincident", 69, 2, 70, 1),
    Sketcher.Constraint("Coincident", 70, 2, 71, 1),
    Sketcher.Constraint("Coincident", 71, 2, 68, 1),
    Sketcher.Constraint("Coincident", 72, 2, 73, 1),
    Sketcher.Constraint("Coincident", 73, 2, 74, 1),
    Sketcher.Constraint("Coincident", 74, 2, 75, 1),
    Sketcher.Constraint("Coincident", 75, 2, 72, 1),
    Sketcher.Constraint("PointOnObject", 1, 2, -2),
    Sketcher.Constraint("PointOnObject", 3, 2, -2),
    Sketcher.Constraint("DistanceY", 9, 2, -1, 1, 1.7162),
    Sketcher.Constraint("DistanceY", 23, 2, -1, 1, 0.175101),
    Sketcher.Constraint("DistanceY", 27, 2, -1, 1, 1.7162),
    Sketcher.Constraint("DistanceY", 37, 2, -1, 1, 0.175101),
    Sketcher.Constraint("DistanceX", 49, 2, -1, 1, 1.510601),
    Sketcher.Constraint("DistanceX", 50, 2, -1, 1, 1.839799),
    Sketcher.Constraint("DistanceX", -1, 1, 58, 2, 1.839799),
    Sketcher.Constraint("DistanceX", -1, 1, 59, 2, 1.510601),
    Sketcher.Constraint("Distance", 1, 0.398521),
    Sketcher.Constraint("Distance", 2, 0.398521),
    Sketcher.Constraint("Distance", 4, 0.398521),
    Sketcher.Constraint("Distance", 5, 0.398521),
    Sketcher.Constraint("Distance", 8, 0.398521),
    Sketcher.Constraint("Distance", 9, 0.398521),
    Sketcher.Constraint("Distance", 12, 0.398521),
    Sketcher.Constraint("Distance", 13, 0.398521),
    Sketcher.Constraint("Distance", 16, 0.398521),
    Sketcher.Constraint("Distance", 17, 0.398521),
    Sketcher.Constraint("Distance", 20, 0.398521),
    Sketcher.Constraint("Distance", 21, 0.398521),
    Sketcher.Constraint("Distance", 24, 0.398521),
    Sketcher.Constraint("Distance", 25, 0.398521),
    Sketcher.Constraint("Distance", 28, 0.398521),
    Sketcher.Constraint("Distance", 29, 0.398521),
    Sketcher.Constraint("Distance", 32, 0.398521),
    Sketcher.Constraint("Distance", 33, 0.398521),
    Sketcher.Constraint("Distance", 36, 0.398521),
    Sketcher.Constraint("Distance", 37, 0.398521),
    Sketcher.Constraint("Distance", 40, 0.398521),
    Sketcher.Constraint("Distance", 41, 0.398521),
    Sketcher.Constraint("Distance", 44, 0.398521),
    Sketcher.Constraint("Distance", 45, 0.398521),
    Sketcher.Constraint("Distance", 48, 0.398521),
    Sketcher.Constraint("Distance", 49, 0.398521),
    Sketcher.Constraint("Distance", 52, 0.398521),
    Sketcher.Constraint("Distance", 53, 0.398521),
    Sketcher.Constraint("Distance", 56, 0.398521),
    Sketcher.Constraint("Distance", 57, 0.398521),
    Sketcher.Constraint("Distance", 60, 0.398521),
    Sketcher.Constraint("Distance", 61, 0.398521),
    Sketcher.Constraint("Distance", 64, 0.398521),
    Sketcher.Constraint("Distance", 65, 0.398521),
    Sketcher.Constraint("Distance", 69, 0.398521),
    Sketcher.Constraint("Distance", 70, 0.398521),
    Sketcher.Constraint("Distance", 73, 0.398521),
    Sketcher.Constraint("Distance", 74, 0.398521),
    Sketcher.Constraint("DistanceX", -1, 1, 8, 2, 1.444761),
    Sketcher.Constraint("DistanceY", 8, 2, -1, 1, 1.85623),
    Sketcher.Constraint("DistanceX", -1, 1, 10, 2, 2.374271),
    Sketcher.Constraint("DistanceY", 12, 2, -1, 1, 1.286541),
    Sketcher.Constraint("DistanceY", 13, 2, -1, 1, 1.03295),
    Sketcher.Constraint("DistanceX", -1, 1, 14, 2, 3.236111),
    Sketcher.Constraint("DistanceY", 15, 2, -1, 1, 1.66994),
    Sketcher.Constraint("DistanceX", -1, 1, 16, 2, 2.28024),
    Sketcher.Constraint("DistanceX", -1, 1, 17, 2, 2.488668),
    Sketcher.Constraint("DistanceX", -1, 1, 19, 2, 2.301881),
    Sketcher.Constraint("DistanceY", 19, 2, -1, 1, 0.975369),
    Sketcher.Constraint("DistanceY", -1, 1, 21, 2, 0.583189),
    Sketcher.Constraint("DistanceX", -1, 1, 22, 2, 3.852349),
    Sketcher.Constraint("DistanceX", -1, 1, 23, 2, 2.49386),
    Sketcher.Constraint("DistanceX", 24, 2, -1, 1, 1.444761),
    Sketcher.Constraint("DistanceY", 24, 2, -1, 1, 1.85623),
    Sketcher.Constraint("DistanceX", 26, 2, -1, 1, 2.374271),
    Sketcher.Constraint("DistanceY", 28, 2, -1, 1, 1.286541),
    Sketcher.Constraint("DistanceY", 29, 2, -1, 1, 1.66994),
    Sketcher.Constraint("DistanceX", 30, 2, -1, 1, 3.236111),
    Sketcher.Constraint("DistanceY", 31, 2, -1, 1, 1.03295),
    Sketcher.Constraint("DistanceX", 32, 2, -1, 1, 2.28024),
    Sketcher.Constraint("DistanceX", 33, 2, -1, 1, 2.301881),
    Sketcher.Constraint("DistanceY", 33, 2, -1, 1, 0.975369),
    Sketcher.Constraint("DistanceX", 35, 2, -1, 1, 2.488668),
    Sketcher.Constraint("DistanceX", 37, 2, -1, 1, 2.49386),
    Sketcher.Constraint("DistanceX", 38, 2, -1, 1, 3.852349),
    Sketcher.Constraint("DistanceY", -1, 1, 39, 2, 0.583189),
    Sketcher.Constraint("DistanceX", 41, 2, -1, 1, 2.415591),
    Sketcher.Constraint("DistanceY", -1, 1, 41, 2, 0.644142),
    Sketcher.Constraint("DistanceX", 42, 2, -1, 1, 3.53997),
    Sketcher.Constraint("DistanceY", -1, 1, 45, 2, 1.393582),
    Sketcher.Constraint("DistanceX", 46, 2, -1, 1, 2.843979),
    Sketcher.Constraint("DistanceX", 47, 2, -1, 1, 1.56022),
    Sketcher.Constraint("DistanceX", 48, 2, -1, 1, 1.119531),
    Sketcher.Constraint("DistanceY", -1, 1, 50, 2, 3.399652),
    Sketcher.Constraint("DistanceX", 51, 2, -1, 1, 0.84142),
    Sketcher.Constraint("DistanceY", -1, 1, 51, 2, 2.354148),
    Sketcher.Constraint("DistanceX", 53, 2, -1, 1, 0.781949),
    Sketcher.Constraint("DistanceX", 54, 2, -1, 1, 0.636249),
    Sketcher.Constraint("DistanceY", -1, 1, 54, 2, 3.812831),
    Sketcher.Constraint("DistanceX", 55, 2, -1, 1, 0.031439),
    Sketcher.Constraint("DistanceX", -1, 1, 56, 2, 1.119531),
    Sketcher.Constraint("DistanceX", -1, 1, 57, 2, 0.84142),
    Sketcher.Constraint("DistanceY", -1, 1, 57, 2, 2.354148),
    Sketcher.Constraint("DistanceY", -1, 1, 58, 2, 3.399652),
    Sketcher.Constraint("DistanceX", -1, 1, 61, 2, 1.56022),
    Sketcher.Constraint("DistanceX", -1, 1, 62, 2, 2.843979),
    Sketcher.Constraint("DistanceY", -1, 1, 63, 2, 1.393582),
    Sketcher.Constraint("DistanceX", -1, 1, 66, 2, 3.53997),
    Sketcher.Constraint("DistanceX", -1, 1, 67, 2, 2.415591),
    Sketcher.Constraint("DistanceY", -1, 1, 67, 2, 0.644142),
    Sketcher.Constraint("DistanceX", -1, 1, 72, 2, 0.781949),
    Sketcher.Constraint("DistanceX", -1, 1, 74, 2, 0.031439),
    Sketcher.Constraint("DistanceX", -1, 1, 75, 2, 0.636249),
    Sketcher.Constraint("DistanceY", -1, 1, 75, 2, 3.812831),
    Sketcher.Constraint("Distance", 0, 1.445628),
    Sketcher.Constraint("Distance", 3, 1.445628),
    Sketcher.Constraint("Distance", 6, 1.445628),
    Sketcher.Constraint("Distance", 7, 1.445628),
    Sketcher.Constraint("Distance", 10, 1.445628),
    Sketcher.Constraint("Distance", 11, 1.445628),
    Sketcher.Constraint("Distance", 14, 1.445628),
    Sketcher.Constraint("Distance", 15, 1.445628),
    Sketcher.Constraint("Distance", 18, 1.445628),
    Sketcher.Constraint("Distance", 19, 1.445628),
    Sketcher.Constraint("Distance", 22, 1.445628),
    Sketcher.Constraint("Distance", 23, 1.445628),
    Sketcher.Constraint("Distance", 26, 1.445628),
    Sketcher.Constraint("Distance", 27, 1.445628),
    Sketcher.Constraint("Distance", 30, 1.445628),
    Sketcher.Constraint("Distance", 31, 1.445628),
    Sketcher.Constraint("Distance", 34, 1.445628),
    Sketcher.Constraint("Distance", 35, 1.445628),
    Sketcher.Constraint("Distance", 38, 1.445628),
    Sketcher.Constraint("Distance", 39, 1.445628),
    Sketcher.Constraint("Distance", 42, 1.445628),
    Sketcher.Constraint("Distance", 43, 1.445628),
    Sketcher.Constraint("Distance", 46, 1.445628),
    Sketcher.Constraint("Distance", 47, 1.445628),
    Sketcher.Constraint("Distance", 54, 1.445628),
    Sketcher.Constraint("Distance", 55, 1.445628),
    Sketcher.Constraint("Distance", 62, 1.445628),
    Sketcher.Constraint("Distance", 63, 1.445628),
    Sketcher.Constraint("Distance", 66, 1.445628),
    Sketcher.Constraint("Distance", 67, 1.445628),
    Sketcher.Constraint("Distance", 68, 1.445628),
    Sketcher.Constraint("Distance", 71, 1.445628),
    Sketcher.Constraint("Distance", 72, 1.445628),
    Sketcher.Constraint("Distance", 75, 1.445628),
    Sketcher.Constraint("DistanceX", 0, 2, -1, 1, 0.380444),
    Sketcher.Constraint("DistanceY", 0, 2, -1, 1, 2.470883),
    Sketcher.Constraint("DistanceX", -1, 1, 4, 2, 0.763764),
    Sketcher.Constraint("DistanceY", 4, 2, -1, 1, 2.224767),
    Sketcher.Constraint("DistanceX", -1, 1, 5, 2, 1.162125),
    Sketcher.Constraint("DistanceX", -1, 1, 6, 2, 1.255143),
    Sketcher.Constraint("DistanceX", 40, 2, -1, 1, 2.154097),
    Sketcher.Constraint("DistanceX", 44, 2, -1, 1, 1.730582),
    Sketcher.Constraint("DistanceX", -1, 1, 60, 2, 1.730582),
    Sketcher.Constraint("DistanceX", -1, 1, 64, 2, 2.154097),
    Sketcher.Constraint("DistanceX", 68, 2, -1, 1, 1.162125),
    Sketcher.Constraint("DistanceY", 68, 2, -1, 1, 2.213474),
    Sketcher.Constraint("DistanceX", 69, 2, -1, 1, 0.763764),
    Sketcher.Constraint("DistanceX", 70, 2, -1, 1, 0.442464),
])
pad4 = body.newObject("PartDesign::Pad", "Pad003")
pad4.Profile = sketch9
pad4.Length = 1.5
pad4.Reversed = True

doc.recompute()
